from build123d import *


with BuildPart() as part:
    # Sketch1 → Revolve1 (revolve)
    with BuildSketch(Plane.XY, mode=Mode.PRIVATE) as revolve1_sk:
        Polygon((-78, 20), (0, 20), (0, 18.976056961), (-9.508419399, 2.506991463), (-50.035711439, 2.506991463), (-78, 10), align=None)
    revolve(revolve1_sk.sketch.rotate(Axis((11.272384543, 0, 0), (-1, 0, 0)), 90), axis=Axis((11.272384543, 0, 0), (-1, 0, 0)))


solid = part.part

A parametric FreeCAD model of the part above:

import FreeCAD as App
import Part
import Sketcher

V = App.Vector
Q = App.Units.Quantity


def add_polygon(sketch, points):
    """Adds a closed chain of lines whose ends are joined by coincident constraints."""
    first, n = sketch.GeometryCount, len(points)
    for a, b in zip(points, points[1:] + points[:1]):
        sketch.addGeometry(Part.LineSegment(App.Vector(*a, 0), App.Vector(*b, 0)), False)
    for i in range(n):
        sketch.addConstraint(Sketcher.Constraint("Coincident", first + i, 2, first + (i + 1) % n, 1))

doc = App.newDocument("Part")
body = doc.addObject("PartDesign::Body", "Body")

sketch1 = body.newObject("Sketcher::SketchObject", "Sketch")
sketch1.AttachmentSupport = (doc.getObject("XY_Plane"), [""])
sketch1.MapMode = "FlatFace"
add_polygon(sketch1, [(0, 20), (-78, 20), (-78, 10), (-50, 2.5), (-9.5, 2.5), (0, 19)])
sketch1.addConstraint([
    Sketcher.Constraint("Horizontal", 0),
    Sketcher.Constraint("Vertical", 1),
    Sketcher.Constraint("Horizontal", 3),
    Sketcher.Constraint("Vertical", 5),
    Sketcher.Constraint("PointOnObject", 4, 2, -2),
    Sketcher.Constraint("DistanceX", 0, 2, 0, 1, Q("78 mm")),
    Sketcher.Constraint("DistanceY", 1, 2, 1, 1, Q("10 mm")),
    Sketcher.Constraint("Angle", 2, Q("-15 deg")),
    Sketcher.Constraint("Angle", 4, Q("60 deg")),
    Sketcher.Constraint("DistanceY", -1, 1, 0, 2, Q("20 mm")),
    Sketcher.Constraint("Distance", 2, Q("28.950762 mm")),
    Sketcher.Constraint("Distance", 4, Q("19.016839 mm")),
])
revolution = body.newObject("PartDesign::Revolution", "Revolution")
revolution.Profile = sketch1
revolution.ReferenceAxis = (sketch1, ["H_Axis"])
revolution.Angle = 360

doc.recompute()
